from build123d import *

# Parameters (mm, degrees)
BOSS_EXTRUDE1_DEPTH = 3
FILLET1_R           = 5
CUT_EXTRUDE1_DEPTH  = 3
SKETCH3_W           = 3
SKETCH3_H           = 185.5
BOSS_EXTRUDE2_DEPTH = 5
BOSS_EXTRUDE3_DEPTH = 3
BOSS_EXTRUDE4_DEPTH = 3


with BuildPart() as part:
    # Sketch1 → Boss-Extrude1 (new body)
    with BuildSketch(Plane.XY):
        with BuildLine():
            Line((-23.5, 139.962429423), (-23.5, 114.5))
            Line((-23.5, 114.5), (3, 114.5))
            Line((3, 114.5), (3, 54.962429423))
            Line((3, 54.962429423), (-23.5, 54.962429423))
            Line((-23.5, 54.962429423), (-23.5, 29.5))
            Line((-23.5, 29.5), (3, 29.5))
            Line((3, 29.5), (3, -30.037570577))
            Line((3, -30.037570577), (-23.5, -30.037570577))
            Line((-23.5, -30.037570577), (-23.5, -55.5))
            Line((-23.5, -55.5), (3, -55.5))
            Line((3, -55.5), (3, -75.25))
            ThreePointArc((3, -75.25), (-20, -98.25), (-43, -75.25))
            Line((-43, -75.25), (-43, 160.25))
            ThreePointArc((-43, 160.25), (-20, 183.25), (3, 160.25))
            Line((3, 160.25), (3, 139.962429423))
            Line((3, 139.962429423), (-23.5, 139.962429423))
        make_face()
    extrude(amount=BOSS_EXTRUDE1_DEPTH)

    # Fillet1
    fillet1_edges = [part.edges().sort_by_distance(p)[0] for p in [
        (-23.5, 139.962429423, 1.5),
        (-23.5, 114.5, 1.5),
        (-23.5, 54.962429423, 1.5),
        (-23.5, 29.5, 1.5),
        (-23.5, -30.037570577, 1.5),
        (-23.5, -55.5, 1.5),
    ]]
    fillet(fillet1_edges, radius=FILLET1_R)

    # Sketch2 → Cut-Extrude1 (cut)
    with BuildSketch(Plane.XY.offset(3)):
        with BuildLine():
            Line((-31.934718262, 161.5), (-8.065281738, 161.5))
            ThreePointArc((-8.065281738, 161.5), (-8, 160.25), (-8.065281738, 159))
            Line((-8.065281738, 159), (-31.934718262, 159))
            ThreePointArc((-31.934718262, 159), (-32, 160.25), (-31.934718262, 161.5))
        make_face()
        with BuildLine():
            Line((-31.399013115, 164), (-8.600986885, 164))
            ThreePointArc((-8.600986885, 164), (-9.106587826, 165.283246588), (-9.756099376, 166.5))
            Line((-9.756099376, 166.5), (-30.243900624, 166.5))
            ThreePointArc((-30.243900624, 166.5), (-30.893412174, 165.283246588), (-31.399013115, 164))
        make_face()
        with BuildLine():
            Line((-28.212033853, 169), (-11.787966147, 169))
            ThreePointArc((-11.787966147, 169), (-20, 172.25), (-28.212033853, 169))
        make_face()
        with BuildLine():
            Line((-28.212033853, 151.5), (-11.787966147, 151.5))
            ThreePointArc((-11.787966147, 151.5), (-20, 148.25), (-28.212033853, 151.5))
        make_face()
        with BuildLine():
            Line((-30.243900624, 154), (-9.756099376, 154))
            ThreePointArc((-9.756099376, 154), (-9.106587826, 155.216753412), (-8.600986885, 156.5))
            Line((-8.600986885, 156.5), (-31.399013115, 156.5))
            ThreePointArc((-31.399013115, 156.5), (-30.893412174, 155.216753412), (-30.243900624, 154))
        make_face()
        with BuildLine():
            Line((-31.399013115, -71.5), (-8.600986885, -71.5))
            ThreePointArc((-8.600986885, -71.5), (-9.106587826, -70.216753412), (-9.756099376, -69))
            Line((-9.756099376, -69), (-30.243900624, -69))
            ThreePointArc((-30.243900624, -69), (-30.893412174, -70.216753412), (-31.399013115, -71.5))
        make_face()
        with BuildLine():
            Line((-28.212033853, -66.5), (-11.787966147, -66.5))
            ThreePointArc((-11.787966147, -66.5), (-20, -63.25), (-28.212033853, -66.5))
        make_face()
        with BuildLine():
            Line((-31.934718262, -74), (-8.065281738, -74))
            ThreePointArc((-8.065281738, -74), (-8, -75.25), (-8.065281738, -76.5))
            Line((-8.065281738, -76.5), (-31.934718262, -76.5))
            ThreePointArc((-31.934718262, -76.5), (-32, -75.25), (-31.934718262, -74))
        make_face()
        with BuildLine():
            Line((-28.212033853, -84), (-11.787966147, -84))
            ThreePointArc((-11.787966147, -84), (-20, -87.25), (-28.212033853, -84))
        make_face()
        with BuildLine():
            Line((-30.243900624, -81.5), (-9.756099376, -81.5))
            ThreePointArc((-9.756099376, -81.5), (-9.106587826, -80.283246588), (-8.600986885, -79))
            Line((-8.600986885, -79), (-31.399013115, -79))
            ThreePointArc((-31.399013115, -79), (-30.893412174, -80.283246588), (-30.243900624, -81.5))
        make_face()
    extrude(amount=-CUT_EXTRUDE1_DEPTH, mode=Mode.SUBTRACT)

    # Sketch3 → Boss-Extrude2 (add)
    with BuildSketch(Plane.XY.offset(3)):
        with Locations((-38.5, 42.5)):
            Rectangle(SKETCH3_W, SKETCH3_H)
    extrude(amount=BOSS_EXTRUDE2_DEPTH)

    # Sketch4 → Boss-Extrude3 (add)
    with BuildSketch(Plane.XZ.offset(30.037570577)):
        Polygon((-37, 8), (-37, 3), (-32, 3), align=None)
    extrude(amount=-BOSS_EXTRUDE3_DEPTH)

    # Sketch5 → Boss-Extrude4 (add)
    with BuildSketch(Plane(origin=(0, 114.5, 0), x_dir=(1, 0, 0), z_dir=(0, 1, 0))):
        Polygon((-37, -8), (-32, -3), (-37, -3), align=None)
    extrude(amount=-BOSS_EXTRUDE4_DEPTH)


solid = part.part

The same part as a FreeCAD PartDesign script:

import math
import FreeCAD as App
import Part
import Sketcher
Q = App.Units.Quantity


def edges_at(feature, points):
    """Names of the edges that pass closest to the given points."""
    edges = feature.Shape.Edges
    near = lambda p: min(range(len(edges)), key=lambda i: edges[i].distToShape(Part.Vertex(*p))[0])
    return sorted({f"Edge{near(p) + 1}" for p in points})

doc = App.newDocument("Part")
params = doc.addObject("Spreadsheet::Sheet", "Params")
for row, (alias, value) in enumerate([
    ("sketch1_radius", "23 mm"),
    ("sketch1_width", "26.5 mm"),
    ("sketch1_height", "235.5 mm"),
    ("sketch1_height2", "19.75 mm"),
    ("pad1_length", "3 mm"),
    ("fillet_radius", "5 mm"),
    ("sketch2_radius", "12 mm"),
    ("pocket1_length", "3 mm"),
    ("sketch3_width", "3 mm"),
    ("sketch3_height", "185.5 mm"),
    ("pad2_length", "5 mm"),
    ("sketch4_width", "5 mm"),
    ("pad3_length", "3 mm"),
    ("sketch5_width", "5 mm"),
    ("pad4_length", "3 mm"),
], start=1):
    params.set(f"A{row}", alias)
    params.set(f"B{row}", "=" + value)
    params.setAlias(f"B{row}", alias)

body = doc.addObject("PartDesign::Body", "Body")

# Sketch on XY plane
sketch1 = body.newObject("Sketcher::SketchObject", "Sketch")
sketch1.AttachmentSupport = (doc.getObject("XY_Plane"), [""])
sketch1.MapMode = "FlatFace"
sketch1.addGeometry(Part.LineSegment(App.Vector(-23.5, 114.5, 0), App.Vector(-23.5, 139.962429, 0)), False)
sketch1.addGeometry(Part.LineSegment(App.Vector(-23.5, 139.962429, 0), App.Vector(3, 139.962429, 0)), False)
sketch1.addGeometry(Part.LineSegment(App.Vector(3, 139.962429, 0), App.Vector(3, 160.25, 0)), False)
sketch1.addGeometry(Part.ArcOfCircle(Part.Circle(App.Vector(-20, 160.25, 0), App.Vector(0, 0, 1), 23), math.radians(0), math.radians(180)), False)
sketch1.addGeometry(Part.LineSegment(App.Vector(-43, 160.25, 0), App.Vector(-43, -75.25, 0)), False)
sketch1.addGeometry(Part.ArcOfCircle(Part.Circle(App.Vector(-20, -75.25, 0), App.Vector(0, 0, 1), 23), math.radians(180), math.radians(360)), False)
sketch1.addGeometry(Part.LineSegment(App.Vector(3, -75.25, 0), App.Vector(3, -55.5, 0)), False)
sketch1.addGeometry(Part.LineSegment(App.Vector(3, -55.5, 0), App.Vector(-23.5, -55.5, 0)), False)
sketch1.addGeometry(Part.LineSegment(App.Vector(-23.5, -55.5, 0), App.Vector(-23.5, -30.037571, 0)), False)
sketch1.addGeometry(Part.LineSegment(App.Vector(-23.5, -30.037571, 0), App.Vector(3, -30.037571, 0)), False)
sketch1.addGeometry(Part.LineSegment(App.Vector(3, -30.037571, 0), App.Vector(3, 29.5, 0)), False)
sketch1.addGeometry(Part.LineSegment(App.Vector(3, 29.5, 0), App.Vector(-23.5, 29.5, 0)), False)
sketch1.addGeometry(Part.LineSegment(App.Vector(-23.5, 29.5, 0), App.Vector(-23.5, 54.962429, 0)), False)
sketch1.addGeometry(Part.LineSegment(App.Vector(-23.5, 54.962429, 0), App.Vector(3, 54.962429, 0)), False)
sketch1.addGeometry(Part.LineSegment(App.Vector(3, 54.962429, 0), App.Vector(3, 114.5, 0)), False)
sketch1.addGeometry(Part.LineSegment(App.Vector(3, 114.5, 0), App.Vector(-23.5, 114.5, 0)), False)
sketch1.addConstraint(Sketcher.Constraint("Coincident", 0, 2, 1, 1))
sketch1.addConstraint(Sketcher.Constraint("Coincident", 1, 2, 2, 1))
sketch1.addConstraint(Sketcher.Constraint("Tangent", 2, 2, 3, 1))
sketch1.addConstraint(Sketcher.Constraint("Tangent", 3, 2, 4, 1))
sketch1.addConstraint(Sketcher.Constraint("Tangent", 4, 2, 5, 1))
sketch1.addConstraint(Sketcher.Constraint("Tangent", 5, 2, 6, 1))
sketch1.addConstraint(Sketcher.Constraint("Coincident", 6, 2, 7, 1))
sketch1.addConstraint(Sketcher.Constraint("Coincident", 7, 2, 8, 1))
sketch1.addConstraint(Sketcher.Constraint("Coincident", 8, 2, 9, 1))
sketch1.addConstraint(Sketcher.Constraint("Coincident", 9, 2, 10, 1))
sketch1.addConstraint(Sketcher.Constraint("Coincident", 10, 2, 11, 1))
sketch1.addConstraint(Sketcher.Constraint("Coincident", 11, 2, 12, 1))
sketch1.addConstraint(Sketcher.Constraint("Coincident", 12, 2, 13, 1))
sketch1.addConstraint(Sketcher.Constraint("Coincident", 13, 2, 14, 1))
sketch1.addConstraint(Sketcher.Constraint("Coincident", 14, 2, 15, 1))
sketch1.addConstraint(Sketcher.Constraint("Coincident", 15, 2, 0, 1))
sketch1.addConstraint(Sketcher.Constraint("Vertical", 0))
sketch1.addConstraint(Sketcher.Constraint("Horizontal", 1))
sketch1.addConstraint(Sketcher.Constraint("Vertical", 2))
sketch1.addConstraint(Sketcher.Constraint("Vertical", 4))
sketch1.addConstraint(Sketcher.Constraint("Vertical", 6))
sketch1.addConstraint(Sketcher.Constraint("Horizontal", 7))
sketch1.addConstraint(Sketcher.Constraint("Vertical", 8))
sketch1.addConstraint(Sketcher.Constraint("Horizontal", 9))
sketch1.addConstraint(Sketcher.Constraint("Vertical", 10))
sketch1.addConstraint(Sketcher.Constraint("Horizontal", 11))
sketch1.addConstraint(Sketcher.Constraint("Vertical", 12))
sketch1.addConstraint(Sketcher.Constraint("Horizontal", 13))
sketch1.addConstraint(Sketcher.Constraint("Vertical", 14))
sketch1.addConstraint(Sketcher.Constraint("Horizontal", 15))
sketch1.addConstraint(Sketcher.Constraint("Equal", 3, 5))
sketch1.addConstraint(Sketcher.Constraint("Vertical", 0, 2, 7, 2))
sketch1.addConstraint(Sketcher.Constraint("Vertical", 6, 2, 9, 2))
sketch1.addConstraint(Sketcher.Constraint("Vertical", 8, 2, 11, 2))
sketch1.addConstraint(Sketcher.Constraint("Vertical", 10, 2, 13, 2))
sketch1.addConstraint(Sketcher.Constraint("Equal", 0, 8))
sketch1.addConstraint(Sketcher.Constraint("Equal", 8, 12))
sketch1.addConstraint(Sketcher.Constraint("Equal", 10, 14))
sketch1.addConstraint(Sketcher.Constraint("Radius", 3, Q("23 mm")))
sketch1.addConstraint(Sketcher.Constraint("DistanceX", 1, 1, 1, 2, Q("26.5 mm")))
sketch1.addConstraint(Sketcher.Constraint("DistanceY", 4, 2, 4, 1, Q("235.5 mm")))
sketch1.addConstraint(Sketcher.Constraint("DistanceX", 3, 3, -1, 1, Q("20 mm")))
sketch1.addConstraint(Sketcher.Constraint("DistanceY", 6, 2, 10, 2, Q("85 mm")))
sketch1.addConstraint(Sketcher.Constraint("DistanceY", 6, 1, 6, 2, Q("19.75 mm")))
sketch1.addConstraint(Sketcher.Constraint("DistanceY", 6, 2, -1, 1, Q("55.5 mm")))
sketch1.addConstraint(Sketcher.Constraint("DistanceY", 0, 1, 0, 2, Q("25.462429 mm")))
sketch1.setExpression("Constraints[38]", "Params.sketch1_radius")
sketch1.setExpression("Constraints[39]", "Params.sketch1_width")
sketch1.setExpression("Constraints[40]", "Params.sketch1_height")
sketch1.setExpression("Constraints[43]", "Params.sketch1_height2")
pad1 = body.newObject("PartDesign::Pad", "Pad")
pad1.Profile = sketch1
pad1.setExpression("Length", "Params.pad1_length")
doc.recompute()

fillet = body.newObject("PartDesign::Fillet", "Fillet")
fillet.Base = (pad1, edges_at(pad1, [
    (-23.5, 139.962, 1.5),
    (-23.5, 114.5, 1.5),
    (-23.5, 54.962, 1.5),
    (-23.5, 29.5, 1.5),
    (-23.5, -30.038, 1.5),
    (-23.5, -55.5, 1.5),
]))
fillet.setExpression("Radius", "Params.fillet_radius")

# Sketch on XY plane
sketch2 = body.newObject("Sketcher::SketchObject", "Sketch001")
sketch2.AttachmentSupport = (doc.getObject("XY_Plane"), [""])
sketch2.MapMode = "FlatFace"
sketch2.AttachmentOffset = App.Placement(App.Vector(0, 0, 3), App.Rotation())
sketch2.addGeometry(Part.LineSegment(App.Vector(-8.065282, 161.5, 0), App.Vector(-31.934718, 161.5, 0)), False)
sketch2.addGeometry(Part.ArcOfCircle(Part.Circle(App.Vector(-20, 160.25, 0), App.Vector(0, 0, 1), 12), math.radians(174.020843), math.radians(185.979157)), False)
sketch2.addGeometry(Part.LineSegment(App.Vector(-31.934718, 159, 0), App.Vector(-8.065282, 159, 0)), False)
sketch2.addGeometry(Part.ArcOfCircle(Part.Circle(App.Vector(-20, 160.25, 0), App.Vector(0, 0, 1), 12), math.radians(-5.979157), math.radians(5.979157)), False)
sketch2.addGeometry(Part.LineSegment(App.Vector(-31.399013, 164, 0), App.Vector(-8.600987, 164, 0)), False)
sketch2.addGeometry(Part.ArcOfCircle(Part.Circle(App.Vector(-20, 160.25, 0), App.Vector(0, 0, 1), 12), math.radians(18.209957), math.radians(31.388167)), False)
sketch2.addGeometry(Part.LineSegment(App.Vector(-9.756099, 166.5, 0), App.Vector(-30.243901, 166.5, 0)), False)
sketch2.addGeometry(Part.ArcOfCircle(Part.Circle(App.Vector(-20, 160.25, 0), App.Vector(0, 0, 1), 12), math.radians(148.611833), math.radians(161.790043)), False)
sketch2.addGeometry(Part.LineSegment(App.Vector(-28.212034, 169, 0), App.Vector(-11.787966, 169, 0)), False)
sketch2.addGeometry(Part.ArcOfCircle(Part.Circle(App.Vector(-20, 160.25, 0), App.Vector(0, 0, 1), 12), math.radians(46.816578), math.radians(133.183422)), False)
sketch2.addGeometry(Part.LineSegment(App.Vector(-11.787966, 151.5, 0), App.Vector(-28.212034, 151.5, 0)), False)
sketch2.addGeometry(Part.ArcOfCircle(Part.Circle(App.Vector(-20, 160.25, 0), App.Vector(0, 0, 1), 12), math.radians(-133.183422), math.radians(-46.816578)), False)
sketch2.addGeometry(Part.LineSegment(App.Vector(-30.243901, 154, 0), App.Vector(-9.756099, 154, 0)), False)
sketch2.addGeometry(Part.ArcOfCircle(Part.Circle(App.Vector(-20, 160.25, 0), App.Vector(0, 0, 1), 12), math.radians(-31.388167), math.radians(-18.209957)), False)
sketch2.addGeometry(Part.LineSegment(App.Vector(-8.600987, 156.5, 0), App.Vector(-31.399013, 156.5, 0)), False)
sketch2.addGeometry(Part.ArcOfCircle(Part.Circle(App.Vector(-20, 160.25, 0), App.Vector(0, 0, 1), 12), math.radians(-161.790043), math.radians(-148.611833)), False)
sketch2.addGeometry(Part.LineSegment(App.Vector(-31.399013, -71.5, 0), App.Vector(-8.600987, -71.5, 0)), False)
sketch2.addGeometry(Part.ArcOfCircle(Part.Circle(App.Vector(-20, -75.25, 0), App.Vector(0, 0, 1), 12), math.radians(18.209957), math.radians(31.388167)), False)
sketch2.addGeometry(Part.LineSegment(App.Vector(-9.756099, -69, 0), App.Vector(-30.243901, -69, 0)), False)
sketch2.addGeometry(Part.ArcOfCircle(Part.Circle(App.Vector(-20, -75.25, 0), App.Vector(0, 0, 1), 12), math.radians(148.611833), math.radians(161.790043)), False)
sketch2.addGeometry(Part.LineSegment(App.Vector(-28.212034, -66.5, 0), App.Vector(-11.787966, -66.5, 0)), False)
sketch2.addGeometry(Part.ArcOfCircle(Part.Circle(App.Vector(-20, -75.25, 0), App.Vector(0, 0, 1), 12), math.radians(46.816578), math.radians(133.183422)), False)
sketch2.addGeometry(Part.LineSegment(App.Vector(-8.065282, -74, 0), App.Vector(-31.934718, -74, 0)), False)
sketch2.addGeometry(Part.ArcOfCircle(Part.Circle(App.Vector(-20, -75.25, 0), App.Vector(0, 0, 1), 12), math.radians(174.020843), math.radians(185.979157)), False)
sketch2.addGeometry(Part.LineSegment(App.Vector(-31.934718, -76.5, 0), App.Vector(-8.065282, -76.5, 0)), False)
sketch2.addGeometry(Part.ArcOfCircle(Part.Circle(App.Vector(-20, -75.25, 0), App.Vector(0, 0, 1), 12), math.radians(-5.979157), math.radians(5.979157)), False)
sketch2.addGeometry(Part.LineSegment(App.Vector(-11.787966, -84, 0), App.Vector(-28.212034, -84, 0)), False)
sketch2.addGeometry(Part.ArcOfCircle(Part.Circle(App.Vector(-20, -75.25, 0), App.Vector(0, 0, 1), 12), math.radians(-133.183422), math.radians(-46.816578)), False)
sketch2.addGeometry(Part.LineSegment(App.Vector(-30.243901, -81.5, 0), App.Vector(-9.756099, -81.5, 0)), False)
sketch2.addGeometry(Part.ArcOfCircle(Part.Circle(App.Vector(-20, -75.25, 0), App.Vector(0, 0, 1), 12), math.radians(-31.388167), math.radians(-18.209957)), False)
sketch2.addGeometry(Part.LineSegment(App.Vector(-8.600987, -79, 0), App.Vector(-31.399013, -79, 0)), False)
sketch2.addGeometry(Part.ArcOfCircle(Part.Circle(App.Vector(-20, -75.25, 0), App.Vector(0, 0, 1), 12), math.radians(-161.790043), math.radians(-148.611833)), False)
sketch2.addConstraint(Sketcher.Constraint("Coincident", 0, 2, 1, 1))
sketch2.addConstraint(Sketcher.Constraint("Coincident", 1, 2, 2, 1))
sketch2.addConstraint(Sketcher.Constraint("Coincident", 2, 2, 3, 1))
sketch2.addConstraint(Sketcher.Constraint("Coincident", 3, 2, 0, 1))
sketch2.addConstraint(Sketcher.Constraint("Coincident", 4, 2, 5, 1))
sketch2.addConstraint(Sketcher.Constraint("Coincident", 5, 2, 6, 1))
sketch2.addConstraint(Sketcher.Constraint("Coincident", 6, 2, 7, 1))
sketch2.addConstraint(Sketcher.Constraint("Coincident", 7, 2, 4, 1))
sketch2.addConstraint(Sketcher.Constraint("Coincident", 8, 1, 9, 2))
sketch2.addConstraint(Sketcher.Constraint("Coincident", 9, 1, 8, 2))
sketch2.addConstraint(Sketcher.Constraint("Coincident", 10, 1, 11, 2))
sketch2.addConstraint(Sketcher.Constraint("Coincident", 11, 1, 10, 2))
sketch2.addConstraint(Sketcher.Constraint("Coincident", 12, 2, 13, 1))
sketch2.addConstraint(Sketcher.Constraint("Coincident", 13, 2, 14, 1))
sketch2.addConstraint(Sketcher.Constraint("Coincident", 14, 2, 15, 1))
sketch2.addConstraint(Sketcher.Constraint("Coincident", 15, 2, 12, 1))
sketch2.addConstraint(Sketcher.Constraint("Coincident", 16, 2, 17, 1))
sketch2.addConstraint(Sketcher.Constraint("Coincident", 17, 2, 18, 1))
sketch2.addConstraint(Sketcher.Constraint("Coincident", 18, 2, 19, 1))
sketch2.addConstraint(Sketcher.Constraint("Coincident", 19, 2, 16, 1))
sketch2.addConstraint(Sketcher.Constraint("Coincident", 20, 1, 21, 2))
sketch2.addConstraint(Sketcher.Constraint("Coincident", 21, 1, 20, 2))
sketch2.addConstraint(Sketcher.Constraint("Coincident", 22, 2, 23, 1))
sketch2.addConstraint(Sketcher.Constraint("Coincident", 23, 2, 24, 1))
sketch2.addConstraint(Sketcher.Constraint("Coincident", 24, 2, 25, 1))
sketch2.addConstraint(Sketcher.Constraint("Coincident", 25, 2, 22, 1))
sketch2.addConstraint(Sketcher.Constraint("Coincident", 26, 1, 27, 2))
sketch2.addConstraint(Sketcher.Constraint("Coincident", 27, 1, 26, 2))
sketch2.addConstraint(Sketcher.Constraint("Coincident", 28, 2, 29, 1))
sketch2.addConstraint(Sketcher.Constraint("Coincident", 29, 2, 30, 1))
sketch2.addConstraint(Sketcher.Constraint("Coincident", 30, 2, 31, 1))
sketch2.addConstraint(Sketcher.Constraint("Coincident", 31, 2, 28, 1))
sketch2.addConstraint(Sketcher.Constraint("Horizontal", 0))
sketch2.addConstraint(Sketcher.Constraint("Horizontal", 2))
sketch2.addConstraint(Sketcher.Constraint("Horizontal", 4))
sketch2.addConstraint(Sketcher.Constraint("Horizontal", 6))
sketch2.addConstraint(Sketcher.Constraint("Horizontal", 8))
sketch2.addConstraint(Sketcher.Constraint("Horizontal", 10))
sketch2.addConstraint(Sketcher.Constraint("Horizontal", 12))
sketch2.addConstraint(Sketcher.Constraint("Horizontal", 14))
sketch2.addConstraint(Sketcher.Constraint("Horizontal", 16))
sketch2.addConstraint(Sketcher.Constraint("Horizontal", 18))
sketch2.addConstraint(Sketcher.Constraint("Horizontal", 20))
sketch2.addConstraint(Sketcher.Constraint("Horizontal", 22))
sketch2.addConstraint(Sketcher.Constraint("Horizontal", 24))
sketch2.addConstraint(Sketcher.Constraint("Horizontal", 26))
sketch2.addConstraint(Sketcher.Constraint("Horizontal", 28))
sketch2.addConstraint(Sketcher.Constraint("Horizontal", 30))
sketch2.addConstraint(Sketcher.Constraint("Coincident", 3, 3, 1, 3))
sketch2.addConstraint(Sketcher.Constraint("Coincident", 5, 3, 1, 3))
sketch2.addConstraint(Sketcher.Constraint("Coincident", 7, 3, 1, 3))
sketch2.addConstraint(Sketcher.Constraint("Coincident", 9, 3, 1, 3))
sketch2.addConstraint(Sketcher.Constraint("Coincident", 11, 3, 1, 3))
sketch2.addConstraint(Sketcher.Constraint("Coincident", 13, 3, 1, 3))
sketch2.addConstraint(Sketcher.Constraint("Coincident", 15, 3, 1, 3))
sketch2.addConstraint(Sketcher.Constraint("Coincident", 19, 3, 17, 3))
sketch2.addConstraint(Sketcher.Constraint("Coincident", 21, 3, 17, 3))
sketch2.addConstraint(Sketcher.Constraint("Coincident", 23, 3, 17, 3))
sketch2.addConstraint(Sketcher.Constraint("Coincident", 25, 3, 17, 3))
sketch2.addConstraint(Sketcher.Constraint("Coincident", 27, 3, 17, 3))
sketch2.addConstraint(Sketcher.Constraint("Coincident", 29, 3, 17, 3))
sketch2.addConstraint(Sketcher.Constraint("Coincident", 31, 3, 17, 3))
sketch2.addConstraint(Sketcher.Constraint("Equal", 1, 3))
sketch2.addConstraint(Sketcher.Constraint("Equal", 3, 5))
sketch2.addConstraint(Sketcher.Constraint("Equal", 5, 7))
sketch2.addConstraint(Sketcher.Constraint("Equal", 7, 9))
sketch2.addConstraint(Sketcher.Constraint("Equal", 9, 11))
sketch2.addConstraint(Sketcher.Constraint("Equal", 11, 13))
sketch2.addConstraint(Sketcher.Constraint("Equal", 13, 15))
sketch2.addConstraint(Sketcher.Constraint("Equal", 15, 17))
sketch2.addConstraint(Sketcher.Constraint("Equal", 17, 19))
sketch2.addConstraint(Sketcher.Constraint("Equal", 19, 21))
sketch2.addConstraint(Sketcher.Constraint("Equal", 21, 23))
sketch2.addConstraint(Sketcher.Constraint("Equal", 23, 25))
sketch2.addConstraint(Sketcher.Constraint("Equal", 25, 27))
sketch2.addConstraint(Sketcher.Constraint("Equal", 27, 29))
sketch2.addConstraint(Sketcher.Constraint("Equal", 29, 31))
sketch2.addConstraint(Sketcher.Constraint("Vertical", 15, 3, 17, 3))
sketch2.addConstraint(Sketcher.Constraint("Vertical", 0, 2, 1, 2))
sketch2.addConstraint(Sketcher.Constraint("Vertical", 9, 1, 10, 1))
sketch2.addConstraint(Sketcher.Constraint("Vertical", 5, 2, 12, 2))
sketch2.addConstraint(Sketcher.Constraint("Vertical", 4, 2, 13, 2))
sketch2.addConstraint(Sketcher.Constraint("Vertical", 13, 2, 16, 2))
sketch2.addConstraint(Sketcher.Constraint("Vertical", 12, 2, 17, 2))
sketch2.addConstraint(Sketcher.Constraint("Vertical", 11, 1, 20, 1))
sketch2.addConstraint(Sketcher.Constraint("Vertical", 1, 2, 22, 2))
sketch2.addConstraint(Sketcher.Constraint("Vertical", 22, 2, 23, 2))
sketch2.addConstraint(Sketcher.Constraint("Vertical", 21, 1, 26, 1))
sketch2.addConstraint(Sketcher.Constraint("Vertical", 17, 2, 28, 2))
sketch2.addConstraint(Sketcher.Constraint("Vertical", 16, 2, 29, 2))
sketch2.addConstraint(Sketcher.Constraint("Radius", 1, Q("12 mm")))
sketch2.addConstraint(Sketcher.Constraint("DistanceX", 1, 3, -1, 1, Q("20 mm")))
sketch2.addConstraint(Sketcher.Constraint("DistanceY", -1, 1, 1, 2, Q("159 mm")))
sketch2.addConstraint(Sketcher.Constraint("DistanceY", -1, 1, 4, 2, Q("164 mm")))
sketch2.addConstraint(Sketcher.Constraint("DistanceY", -1, 1, 8, 1, Q("169 mm")))
sketch2.addConstraint(Sketcher.Constraint("DistanceY", -1, 1, 12, 2, Q("154 mm")))
sketch2.addConstraint(Sketcher.Constraint("DistanceY", 17, 2, -1, 1, Q("69 mm")))
sketch2.addConstraint(Sketcher.Constraint("DistanceY", -1, 1, 0, 2, Q("161.5 mm")))
sketch2.setExpression("Constraints[90]", "Params.sketch2_radius")
pocket1 = body.newObject("PartDesign::Pocket", "Pocket")
pocket1.Profile = sketch2
pocket1.setExpression("Length", "Params.pocket1_length")

# Sketch on XY plane
sketch3 = body.newObject("Sketcher::SketchObject", "Sketch002")
sketch3.AttachmentSupport = (doc.getObject("XY_Plane"), [""])
sketch3.MapMode = "FlatFace"
sketch3.AttachmentOffset = App.Placement(App.Vector(0, 0, 3), App.Rotation())
sketch3.addGeometry(Part.LineSegment(App.Vector(-40, 135.25, 0), App.Vector(-40, -50.25, 0)), False)
sketch3.addGeometry(Part.LineSegment(App.Vector(-40, -50.25, 0), App.Vector(-37, -50.25, 0)), False)
sketch3.addGeometry(Part.LineSegment(App.Vector(-37, -50.25, 0), App.Vector(-37, 135.25, 0)), False)
sketch3.addGeometry(Part.LineSegment(App.Vector(-37, 135.25, 0), App.Vector(-40, 135.25, 0)), False)
sketch3.addConstraint(Sketcher.Constraint("Coincident", 0, 2, 1, 1))
sketch3.addConstraint(Sketcher.Constraint("Coincident", 1, 2, 2, 1))
sketch3.addConstraint(Sketcher.Constraint("Coincident", 2, 2, 3, 1))
sketch3.addConstraint(Sketcher.Constraint("Coincident", 3, 2, 0, 1))
sketch3.addConstraint(Sketcher.Constraint("Vertical", 0))
sketch3.addConstraint(Sketcher.Constraint("Horizontal", 1))
sketch3.addConstraint(Sketcher.Constraint("Vertical", 2))
sketch3.addConstraint(Sketcher.Constraint("Horizontal", 3))
sketch3.addConstraint(Sketcher.Constraint("DistanceX", 1, 1, 1, 2, Q("3 mm")))
sketch3.addConstraint(Sketcher.Constraint("DistanceY", 0, 2, 0, 1, Q("185.5 mm")))
sketch3.addConstraint(Sketcher.Constraint("DistanceX", 0, 2, -1, 1, Q("40 mm")))
sketch3.addConstraint(Sketcher.Constraint("DistanceY", 0, 2, -1, 1, Q("50.25 mm")))
sketch3.setExpression("Constraints[8]", "Params.sketch3_width")
sketch3.setExpression("Constraints[9]", "Params.sketch3_height")
pad2 = body.newObject("PartDesign::Pad", "Pad001")
pad2.Profile = sketch3
pad2.setExpression("Length", "Params.pad2_length")

# Sketch on XZ plane
sketch4 = body.newObject("Sketcher::SketchObject", "Sketch003")
sketch4.AttachmentSupport = (doc.getObject("XZ_Plane"), [""])
sketch4.MapMode = "FlatFace"
sketch4.AttachmentOffset = App.Placement(App.Vector(0, 0, 30.037571), App.Rotation())
sketch4.addGeometry(Part.LineSegment(App.Vector(-37, 8, 0), App.Vector(-37, 3, 0)), False)
sketch4.addGeometry(Part.LineSegment(App.Vector(-37, 3, 0), App.Vector(-32, 3, 0)), False)
sketch4.addGeometry(Part.LineSegment(App.Vector(-32, 3, 0), App.Vector(-37, 8, 0)), False)
sketch4.addConstraint(Sketcher.Constraint("Coincident", 0, 2, 1, 1))
sketch4.addConstraint(Sketcher.Constraint("Coincident", 1, 2, 2, 1))
sketch4.addConstraint(Sketcher.Constraint("Coincident", 2, 2, 0, 1))
sketch4.addConstraint(Sketcher.Constraint("Vertical", 0))
sketch4.addConstraint(Sketcher.Constraint("Horizontal", 1))
sketch4.addConstraint(Sketcher.Constraint("Equal", 1, 0))
sketch4.addConstraint(Sketcher.Constraint("DistanceX", 1, 1, 1, 2, Q("5 mm")))
sketch4.addConstraint(Sketcher.Constraint("DistanceX", 0, 2, -1, 1, Q("37 mm")))
sketch4.addConstraint(Sketcher.Constraint("DistanceY", -1, 1, 0, 2, Q("3 mm")))
sketch4.setExpression("Constraints[6]", "Params.sketch4_width")
pad3 = body.newObject("PartDesign::Pad", "Pad002")
pad3.Profile = sketch4
pad3.setExpression("Length", "Params.pad3_length")
pad3.Reversed = True

# Sketch on XZ plane
sketch5 = body.newObject("Sketcher::SketchObject", "Sketch004")
sketch5.AttachmentSupport = (doc.getObject("XZ_Plane"), [""])
sketch5.MapMode = "FlatFace"
sketch5.AttachmentOffset = App.Placement(App.Vector(0, 0, -114.5), App.Rotation())
sketch5.addGeometry(Part.LineSegment(App.Vector(-37, 8, 0), App.Vector(-32, 3, 0)), False)
sketch5.addGeometry(Part.LineSegment(App.Vector(-32, 3, 0), App.Vector(-37, 3, 0)), False)
sketch5.addGeometry(Part.LineSegment(App.Vector(-37, 3, 0), App.Vector(-37, 8, 0)), False)
sketch5.addConstraint(Sketcher.Constraint("Coincident", 0, 2, 1, 1))
sketch5.addConstraint(Sketcher.Constraint("Coincident", 1, 2, 2, 1))
sketch5.addConstraint(Sketcher.Constraint("Coincident", 2, 2, 0, 1))
sketch5.addConstraint(Sketcher.Constraint("Horizontal", 1))
sketch5.addConstraint(Sketcher.Constraint("Vertical", 2))
sketch5.addConstraint(Sketcher.Constraint("Equal", 1, 2))
sketch5.addConstraint(Sketcher.Constraint("DistanceX", 1, 2, 1, 1, Q("5 mm")))
sketch5.addConstraint(Sketcher.Constraint("DistanceX", 0, 2, -1, 1, Q("32 mm")))
sketch5.addConstraint(Sketcher.Constraint("DistanceY", -1, 1, 0, 2, Q("3 mm")))
sketch5.setExpression("Constraints[6]", "Params.sketch5_width")
pad4 = body.newObject("PartDesign::Pad", "Pad003")
pad4.Profile = sketch5
pad4.setExpression("Length", "Params.pad4_length")

doc.recompute()
